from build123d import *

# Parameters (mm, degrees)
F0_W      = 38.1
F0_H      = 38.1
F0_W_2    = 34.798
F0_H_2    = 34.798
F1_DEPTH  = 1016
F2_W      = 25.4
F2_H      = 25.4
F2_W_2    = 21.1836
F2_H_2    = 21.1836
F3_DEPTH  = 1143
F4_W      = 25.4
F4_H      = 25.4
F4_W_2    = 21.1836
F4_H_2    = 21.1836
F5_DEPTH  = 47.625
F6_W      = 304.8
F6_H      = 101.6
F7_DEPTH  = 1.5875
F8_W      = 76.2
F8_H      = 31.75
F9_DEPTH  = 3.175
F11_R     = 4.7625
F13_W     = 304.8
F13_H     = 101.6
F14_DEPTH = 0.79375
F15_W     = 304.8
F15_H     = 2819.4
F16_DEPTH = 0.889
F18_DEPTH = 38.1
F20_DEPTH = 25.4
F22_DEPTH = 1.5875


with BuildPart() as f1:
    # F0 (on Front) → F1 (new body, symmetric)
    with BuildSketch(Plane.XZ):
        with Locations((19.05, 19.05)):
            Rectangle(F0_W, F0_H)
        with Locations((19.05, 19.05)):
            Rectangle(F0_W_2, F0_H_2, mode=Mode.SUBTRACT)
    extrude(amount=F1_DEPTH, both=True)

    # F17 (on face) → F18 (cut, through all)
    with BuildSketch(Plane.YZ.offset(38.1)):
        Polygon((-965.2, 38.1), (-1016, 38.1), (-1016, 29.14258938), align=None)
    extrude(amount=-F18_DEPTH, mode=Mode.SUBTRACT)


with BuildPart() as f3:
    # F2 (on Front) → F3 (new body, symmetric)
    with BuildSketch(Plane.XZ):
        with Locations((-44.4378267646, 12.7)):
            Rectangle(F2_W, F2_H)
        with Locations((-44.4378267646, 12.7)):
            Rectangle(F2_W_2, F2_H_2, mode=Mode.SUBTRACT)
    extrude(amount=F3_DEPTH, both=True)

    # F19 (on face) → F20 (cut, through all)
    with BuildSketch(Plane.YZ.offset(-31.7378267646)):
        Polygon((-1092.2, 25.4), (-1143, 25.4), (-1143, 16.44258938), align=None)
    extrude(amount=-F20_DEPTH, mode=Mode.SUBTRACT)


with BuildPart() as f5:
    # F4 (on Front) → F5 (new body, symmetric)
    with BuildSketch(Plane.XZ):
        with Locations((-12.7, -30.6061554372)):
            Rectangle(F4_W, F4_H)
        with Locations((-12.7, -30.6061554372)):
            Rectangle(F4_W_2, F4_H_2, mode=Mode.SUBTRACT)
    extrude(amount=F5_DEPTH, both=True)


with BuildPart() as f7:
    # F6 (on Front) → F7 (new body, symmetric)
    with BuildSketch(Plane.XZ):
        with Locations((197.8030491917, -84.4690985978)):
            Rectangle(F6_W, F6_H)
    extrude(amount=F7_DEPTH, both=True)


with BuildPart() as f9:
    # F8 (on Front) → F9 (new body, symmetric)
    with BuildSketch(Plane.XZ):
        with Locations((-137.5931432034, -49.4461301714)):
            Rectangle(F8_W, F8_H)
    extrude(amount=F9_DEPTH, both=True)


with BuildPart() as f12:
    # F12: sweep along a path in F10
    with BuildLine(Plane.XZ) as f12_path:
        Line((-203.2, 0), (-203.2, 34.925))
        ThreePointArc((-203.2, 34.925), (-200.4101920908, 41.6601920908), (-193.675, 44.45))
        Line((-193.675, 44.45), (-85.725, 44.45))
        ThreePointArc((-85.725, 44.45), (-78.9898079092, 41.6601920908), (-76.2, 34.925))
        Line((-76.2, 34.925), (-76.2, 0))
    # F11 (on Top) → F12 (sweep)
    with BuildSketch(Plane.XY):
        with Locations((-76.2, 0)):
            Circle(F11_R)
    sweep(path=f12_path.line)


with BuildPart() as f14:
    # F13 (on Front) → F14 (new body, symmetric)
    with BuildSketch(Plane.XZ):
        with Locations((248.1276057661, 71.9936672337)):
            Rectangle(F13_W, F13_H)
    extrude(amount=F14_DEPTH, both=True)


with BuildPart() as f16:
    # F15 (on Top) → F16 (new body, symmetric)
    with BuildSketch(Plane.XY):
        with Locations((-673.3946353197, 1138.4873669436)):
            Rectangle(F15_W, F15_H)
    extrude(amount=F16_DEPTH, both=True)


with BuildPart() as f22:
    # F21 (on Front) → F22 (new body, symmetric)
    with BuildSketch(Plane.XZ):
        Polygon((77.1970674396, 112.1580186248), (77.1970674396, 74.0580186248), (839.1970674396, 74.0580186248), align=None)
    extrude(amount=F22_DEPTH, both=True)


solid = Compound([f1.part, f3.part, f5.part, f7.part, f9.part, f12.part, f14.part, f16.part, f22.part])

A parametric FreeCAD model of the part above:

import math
import FreeCAD as App
import Part
import Sketcher
from FreeCAD import Vector
Q = App.Units.Quantity


def add_polygon(sketch, points):
    """Adds a closed chain of lines whose ends are joined by coincident constraints."""
    first, n = sketch.GeometryCount, len(points)
    for a, b in zip(points, points[1:] + points[:1]):
        sketch.addGeometry(Part.LineSegment(App.Vector(*a, 0), App.Vector(*b, 0)), False)
    for i in range(n):
        sketch.addConstraint(Sketcher.Constraint("Coincident", first + i, 2, first + (i + 1) % n, 1))

doc = App.newDocument("Part")
body = doc.addObject("PartDesign::Body", "Body")

sketch1 = doc.addObject("Sketcher::SketchObject", "Sketch")
body.addObject(sketch1)
sketch1.AttachmentSupport = (doc.XZ_Plane, [""])
sketch1.MapMode = "FlatFace"
add_polygon(sketch1, [(0, 38), (0, 0), (38, 0), (38, 38)])
add_polygon(sketch1, [(36, 2), (2, 2), (2, 36), (36, 36)])
sketch1.addConstraint([
    Sketcher.Constraint("Vertical", 0),
    Sketcher.Constraint("Horizontal", 1),
    Sketcher.Constraint("Vertical", 2),
    Sketcher.Constraint("Horizontal", 3),
    Sketcher.Constraint("Horizontal", 4),
    Sketcher.Constraint("Vertical", 5),
    Sketcher.Constraint("Horizontal", 6),
    Sketcher.Constraint("Vertical", 7),
    Sketcher.Constraint("Coincident", 0, 2, -1, 1),
    Sketcher.Constraint("Equal", 3, 0),
    Sketcher.Constraint("Equal", 6, 5),
    Sketcher.Constraint("DistanceX", 1, 1, 1, 2, Q("1.5 in")),
    Sketcher.Constraint("DistanceX", 4, 2, 4, 1, Q("1.37 in")),
    Sketcher.Constraint("DistanceX", -1, 1, 4, 2, Q("0.065 in")),
    Sketcher.Constraint("DistanceY", -1, 1, 4, 2, Q("0.065 in")),
])
pad1 = doc.addObject("PartDesign::Pad", "Pad")
body.addObject(pad1)
pad1.Profile = sketch1
pad1.Length = Q("80 in")
pad1.Midplane = True

sketch2 = doc.addObject("Sketcher::SketchObject", "Sketch001")
body.addObject(sketch2)
sketch2.AttachmentSupport = (doc.YZ_Plane, [""])
sketch2.MapMode = "FlatFace"
sketch2.AttachmentOffset = App.Placement(Vector(0, 0, 1.5 * 25.4), App.Rotation())
add_polygon(sketch2, [(-965, 38), (-1016, 38), (-1016, 29)])
sketch2.addConstraint([
    Sketcher.Constraint("Horizontal", 0),
    Sketcher.Constraint("Vertical", 1),
    Sketcher.Constraint("DistanceX", 0, 2, 0, 1, Q("2 in")),
    Sketcher.Constraint("DistanceX", 0, 2, -1, 1, Q("40 in")),
    Sketcher.Constraint("Angle", 2, Q("10 deg")),
    Sketcher.Constraint("DistanceY", -1, 1, 0, 2, Q("1.5 in")),
])
pocket1 = doc.addObject("PartDesign::Pocket", "Pocket")
body.addObject(pocket1)
pocket1.Profile = sketch2
pocket1.Type = "ThroughAll"
body2 = doc.addObject("PartDesign::Body", "Body001")

sketch3 = doc.addObject("Sketcher::SketchObject", "Sketch002")
body2.addObject(sketch3)
sketch3.AttachmentSupport = (doc.getObject("XZ_Plane001"), [""])
sketch3.MapMode = "FlatFace"
add_polygon(sketch3, [(-57, 25), (-57, 0), (-32, 0), (-32, 25)])
add_polygon(sketch3, [(-34, 2), (-55, 2), (-55, 23), (-34, 23)])
sketch3.addConstraint([
    Sketcher.Constraint("Vertical", 0),
    Sketcher.Constraint("Horizontal", 1),
    Sketcher.Constraint("Vertical", 2),
    Sketcher.Constraint("Horizontal", 3),
    Sketcher.Constraint("Horizontal", 4),
    Sketcher.Constraint("Vertical", 5),
    Sketcher.Constraint("Horizontal", 6),
    Sketcher.Constraint("Vertical", 7),
    Sketcher.Constraint("PointOnObject", 0, 2, -1),
    Sketcher.Constraint("Equal", 3, 0),
    Sketcher.Constraint("Equal", 6, 5),
    Sketcher.Constraint("DistanceX", 1, 1, 1, 2, Q("1 in")),
    Sketcher.Constraint("DistanceX", 4, 2, 4, 1, Q("0.834 in")),
    Sketcher.Constraint("DistanceY", -1, 1, 4, 2, Q("0.083 in")),
    Sketcher.Constraint("DistanceX", 0, 2, 4, 2, Q("0.083 in")),
    Sketcher.Constraint("DistanceX", 0, 2, -1, 1, Q("57.137827 mm")),
])
pad2 = doc.addObject("PartDesign::Pad", "Pad001")
body2.addObject(pad2)
pad2.Profile = sketch3
pad2.Length = Q("90 in")
pad2.Midplane = True

sketch4 = doc.addObject("Sketcher::SketchObject", "Sketch003")
body2.addObject(sketch4)
sketch4.AttachmentSupport = (doc.getObject("YZ_Plane001"), [""])
sketch4.MapMode = "FlatFace"
sketch4.AttachmentOffset = App.Placement(Vector(0, 0, -31.737827), App.Rotation())
add_polygon(sketch4, [(-1092, 25), (-1143, 25), (-1143, 16)])
sketch4.addConstraint([
    Sketcher.Constraint("Horizontal", 0),
    Sketcher.Constraint("Vertical", 1),
    Sketcher.Constraint("DistanceX", 0, 2, 0, 1, Q("2 in")),
    Sketcher.Constraint("DistanceX", 0, 2, -1, 1, Q("45 in")),
    Sketcher.Constraint("DistanceY", -1, 1, 0, 2, Q("1 in")),
    Sketcher.Constraint("Angle", 2, Q("10 deg")),
])
pocket2 = doc.addObject("PartDesign::Pocket", "Pocket001")
body2.addObject(pocket2)
pocket2.Profile = sketch4
pocket2.Type = "ThroughAll"
body3 = doc.addObject("PartDesign::Body", "Body002")

sketch5 = doc.addObject("Sketcher::SketchObject", "Sketch004")
body3.addObject(sketch5)
sketch5.AttachmentSupport = (doc.getObject("XZ_Plane002"), [""])
sketch5.MapMode = "FlatFace"
add_polygon(sketch5, [(-25, -18), (-25, -43), (0, -43), (0, -18)])
add_polygon(sketch5, [(-2, -41), (-23, -41), (-23, -20), (-2, -20)])
sketch5.addConstraint([
    Sketcher.Constraint("Vertical", 0),
    Sketcher.Constraint("Horizontal", 1),
    Sketcher.Constraint("Vertical", 2),
    Sketcher.Constraint("Horizontal", 3),
    Sketcher.Constraint("Horizontal", 4),
    Sketcher.Constraint("Vertical", 5),
    Sketcher.Constraint("Horizontal", 6),
    Sketcher.Constraint("Vertical", 7),
    Sketcher.Constraint("PointOnObject", 1, 2, -2),
    Sketcher.Constraint("Equal", 3, 0),
    Sketcher.Constraint("Equal", 6, 5),
    Sketcher.Constraint("DistanceX", 1, 1, 1, 2, Q("1 in")),
    Sketcher.Constraint("DistanceX", 4, 2, 4, 1, Q("0.834 in")),
    Sketcher.Constraint("DistanceX", 4, 2, -1, 1, Q("0.917 in")),
    Sketcher.Constraint("DistanceY", 0, 2, 4, 2, Q("0.083 in")),
    Sketcher.Constraint("DistanceY", 0, 2, -1, 1, Q("43.306155 mm")),
])
pad3 = doc.addObject("PartDesign::Pad", "Pad002")
body3.addObject(pad3)
pad3.Profile = sketch5
pad3.Length = Q("3.75 in")
pad3.Midplane = True
body4 = doc.addObject("PartDesign::Body", "Body003")

sketch6 = doc.addObject("Sketcher::SketchObject", "Sketch005")
body4.addObject(sketch6)
sketch6.AttachmentSupport = (doc.getObject("XZ_Plane003"), [""])
sketch6.MapMode = "FlatFace"
add_polygon(sketch6, [(45, -34), (45, -135), (350, -135), (350, -34)])
sketch6.addConstraint([
    Sketcher.Constraint("Vertical", 0),
    Sketcher.Constraint("Horizontal", 1),
    Sketcher.Constraint("Vertical", 2),
    Sketcher.Constraint("Horizontal", 3),
    Sketcher.Constraint("DistanceX", 1, 1, 1, 2, Q("12 in")),
    Sketcher.Constraint("DistanceY", 0, 2, 0, 1, Q("4 in")),
    Sketcher.Constraint("DistanceY", 0, 2, -1, 1, Q("135.269099 mm")),
    Sketcher.Constraint("DistanceX", -1, 1, 0, 2, Q("45.403049 mm")),
])
pad4 = doc.addObject("PartDesign::Pad", "Pad003")
body4.addObject(pad4)
pad4.Profile = sketch6
pad4.Length = Q("0.125 in")
pad4.Midplane = True
body5 = doc.addObject("PartDesign::Body", "Body004")

sketch7 = doc.addObject("Sketcher::SketchObject", "Sketch006")
body5.addObject(sketch7)
sketch7.AttachmentSupport = (doc.getObject("XZ_Plane004"), [""])
sketch7.MapMode = "FlatFace"
add_polygon(sketch7, [(-176, -34), (-176, -65), (-99, -65), (-99, -34)])
sketch7.addConstraint([
    Sketcher.Constraint("Vertical", 0),
    Sketcher.Constraint("Horizontal", 1),
    Sketcher.Constraint("Vertical", 2),
    Sketcher.Constraint("Horizontal", 3),
    Sketcher.Constraint("DistanceX", 1, 1, 1, 2, Q("3 in")),
    Sketcher.Constraint("DistanceY", 0, 2, 0, 1, Q("1.25 in")),
    Sketcher.Constraint("DistanceY", 0, 2, -1, 1, Q("65.32113 mm")),
    Sketcher.Constraint("DistanceX", 0, 2, -1, 1, Q("175.693143 mm")),
])
pad5 = doc.addObject("PartDesign::Pad", "Pad004")
body5.addObject(pad5)
pad5.Profile = sketch7
pad5.Length = Q("0.25 in")
pad5.Midplane = True
body6 = doc.addObject("PartDesign::Body", "Body005")

sketch8 = doc.addObject("Sketcher::SketchObject", "Sketch007")
body6.addObject(sketch8)
sketch8.AttachmentSupport = (doc.getObject("XY_Plane005"), [""])
sketch8.MapMode = "FlatFace"
sketch8.addGeometry(Part.Circle(Vector(-76.2, 0, 0), Vector(0, 0, 1), 4.8), False)
sketch8.addConstraint([
    Sketcher.Constraint("PointOnObject", 0, 3, -1),
    Sketcher.Constraint("Diameter", 0, Q("0.375 in")),
    Sketcher.Constraint("DistanceX", 0, 3, -1, 1, Q("3 in")),
])

sketch9 = doc.addObject("Sketcher::SketchObject", "Sketch008")
body6.addObject(sketch9)
sketch9.AttachmentSupport = (doc.getObject("XZ_Plane005"), [""])
sketch9.MapMode = "FlatFace"
sketch9.addGeometry([
    Part.LineSegment(Vector(-203, 0, 0), Vector(-203, 35, 0)),
    Part.ArcOfCircle(Part.Circle(Vector(-194, 35, 0), Vector(0, 0, 1), 10), math.radians(90), math.radians(180)),
    Part.LineSegment(Vector(-194, 44, 0), Vector(-86, 44, 0)),
    Part.ArcOfCircle(Part.Circle(Vector(-86, 35, 0), Vector(0, 0, 1), 10), math.radians(0), math.radians(90)),
    Part.LineSegment(Vector(-76, 35, 0), Vector(-76, 0, 0)),
], False)
sketch9.addConstraint([
    Sketcher.Constraint("Tangent", 0, 2, 1, 2),
    Sketcher.Constraint("Tangent", 1, 1, 2, 1),
    Sketcher.Constraint("Tangent", 2, 2, 3, 2),
    Sketcher.Constraint("Tangent", 3, 1, 4, 1),
    Sketcher.Constraint("Vertical", 0),
    Sketcher.Constraint("Horizontal", 2),
    Sketcher.Constraint("Vertical", 4),
    Sketcher.Constraint("Equal", 1, 3),
    Sketcher.Constraint("PointOnObject", 0, 1, -1),
    Sketcher.Constraint("PointOnObject", 4, 2, -1),
    Sketcher.Constraint("DistanceX", 0, 1, -1, 1, Q("8 in")),
    Sketcher.Constraint("DistanceX", 3, 1, -1, 1, Q("3 in")),
    Sketcher.Constraint("Radius", 1, Q("0.375 in")),
    Sketcher.Constraint("DistanceY", 0, 1, 0, 2, Q("1.375 in")),
])
doc.recompute()

additivepipe = doc.addObject("PartDesign::AdditivePipe", "AdditivePipe")
body6.addObject(additivepipe)
additivepipe.Profile = sketch8
additivepipe.Spine = (sketch9, ["Edge1", "Edge2", "Edge3", "Edge4", "Edge5"])
body7 = doc.addObject("PartDesign::Body", "Body006")

sketch10 = doc.addObject("Sketcher::SketchObject", "Sketch009")
body7.addObject(sketch10)
sketch10.AttachmentSupport = (doc.getObject("XZ_Plane006"), [""])
sketch10.MapMode = "FlatFace"
add_polygon(sketch10, [(96, 123), (96, 21), (401, 21), (401, 123)])
sketch10.addConstraint([
    Sketcher.Constraint("Vertical", 0),
    Sketcher.Constraint("Horizontal", 1),
    Sketcher.Constraint("Vertical", 2),
    Sketcher.Constraint("Horizontal", 3),
    Sketcher.Constraint("DistanceX", 1, 1, 1, 2, Q("12 in")),
    Sketcher.Constraint("DistanceY", 0, 2, 0, 1, Q("4 in")),
    Sketcher.Constraint("DistanceX", -1, 1, 0, 2, Q("95.727606 mm")),
    Sketcher.Constraint("DistanceY", -1, 1, 0, 2, Q("21.193667 mm")),
])
pad6 = doc.addObject("PartDesign::Pad", "Pad005")
body7.addObject(pad6)
pad6.Profile = sketch10
pad6.Length = Q("0.0625 in")
pad6.Midplane = True
body8 = doc.addObject("PartDesign::Body", "Body007")

sketch11 = doc.addObject("Sketcher::SketchObject", "Sketch010")
body8.addObject(sketch11)
sketch11.AttachmentSupport = (doc.getObject("XY_Plane007"), [""])
sketch11.MapMode = "FlatFace"
add_polygon(sketch11, [(-826, 2548), (-826, -271), (-521, -271), (-521, 2548)])
sketch11.addConstraint([
    Sketcher.Constraint("Vertical", 0),
    Sketcher.Constraint("Horizontal", 1),
    Sketcher.Constraint("Vertical", 2),
    Sketcher.Constraint("Horizontal", 3),
    Sketcher.Constraint("DistanceX", 1, 1, 1, 2, Q("12 in")),
    Sketcher.Constraint("DistanceY", 0, 2, 0, 1, Q("111 in")),
    Sketcher.Constraint("DistanceX", 0, 2, -1, 1, Q("32.5115998 in")),
    Sketcher.Constraint("DistanceY", 0, 2, -1, 1, Q("271.212633 mm")),
])
pad7 = doc.addObject("PartDesign::Pad", "Pad006")
body8.addObject(pad7)
pad7.Profile = sketch11
pad7.Length = Q("0.07 in")
pad7.Midplane = True
body9 = doc.addObject("PartDesign::Body", "Body008")

sketch12 = doc.addObject("Sketcher::SketchObject", "Sketch011")
body9.addObject(sketch12)
sketch12.AttachmentSupport = (doc.getObject("XZ_Plane008"), [""])
sketch12.MapMode = "FlatFace"
add_polygon(sketch12, [(77, 112), (77, 74), (839, 74)])
sketch12.addConstraint([
    Sketcher.Constraint("Vertical", 0),
    Sketcher.Constraint("Horizontal", 1),
    Sketcher.Constraint("DistanceX", 1, 1, 1, 2, Q("30 in")),
    Sketcher.Constraint("DistanceY", 0, 2, 0, 1, Q("1.5 in")),
    Sketcher.Constraint("DistanceY", -1, 1, 0, 2, Q("74.058019 mm")),
    Sketcher.Constraint("DistanceX", -1, 1, 0, 2, Q("77.197067 mm")),
])
pad8 = doc.addObject("PartDesign::Pad", "Pad007")
body9.addObject(pad8)
pad8.Profile = sketch12
pad8.Length = Q("0.125 in")
pad8.Midplane = True

doc.recompute()
